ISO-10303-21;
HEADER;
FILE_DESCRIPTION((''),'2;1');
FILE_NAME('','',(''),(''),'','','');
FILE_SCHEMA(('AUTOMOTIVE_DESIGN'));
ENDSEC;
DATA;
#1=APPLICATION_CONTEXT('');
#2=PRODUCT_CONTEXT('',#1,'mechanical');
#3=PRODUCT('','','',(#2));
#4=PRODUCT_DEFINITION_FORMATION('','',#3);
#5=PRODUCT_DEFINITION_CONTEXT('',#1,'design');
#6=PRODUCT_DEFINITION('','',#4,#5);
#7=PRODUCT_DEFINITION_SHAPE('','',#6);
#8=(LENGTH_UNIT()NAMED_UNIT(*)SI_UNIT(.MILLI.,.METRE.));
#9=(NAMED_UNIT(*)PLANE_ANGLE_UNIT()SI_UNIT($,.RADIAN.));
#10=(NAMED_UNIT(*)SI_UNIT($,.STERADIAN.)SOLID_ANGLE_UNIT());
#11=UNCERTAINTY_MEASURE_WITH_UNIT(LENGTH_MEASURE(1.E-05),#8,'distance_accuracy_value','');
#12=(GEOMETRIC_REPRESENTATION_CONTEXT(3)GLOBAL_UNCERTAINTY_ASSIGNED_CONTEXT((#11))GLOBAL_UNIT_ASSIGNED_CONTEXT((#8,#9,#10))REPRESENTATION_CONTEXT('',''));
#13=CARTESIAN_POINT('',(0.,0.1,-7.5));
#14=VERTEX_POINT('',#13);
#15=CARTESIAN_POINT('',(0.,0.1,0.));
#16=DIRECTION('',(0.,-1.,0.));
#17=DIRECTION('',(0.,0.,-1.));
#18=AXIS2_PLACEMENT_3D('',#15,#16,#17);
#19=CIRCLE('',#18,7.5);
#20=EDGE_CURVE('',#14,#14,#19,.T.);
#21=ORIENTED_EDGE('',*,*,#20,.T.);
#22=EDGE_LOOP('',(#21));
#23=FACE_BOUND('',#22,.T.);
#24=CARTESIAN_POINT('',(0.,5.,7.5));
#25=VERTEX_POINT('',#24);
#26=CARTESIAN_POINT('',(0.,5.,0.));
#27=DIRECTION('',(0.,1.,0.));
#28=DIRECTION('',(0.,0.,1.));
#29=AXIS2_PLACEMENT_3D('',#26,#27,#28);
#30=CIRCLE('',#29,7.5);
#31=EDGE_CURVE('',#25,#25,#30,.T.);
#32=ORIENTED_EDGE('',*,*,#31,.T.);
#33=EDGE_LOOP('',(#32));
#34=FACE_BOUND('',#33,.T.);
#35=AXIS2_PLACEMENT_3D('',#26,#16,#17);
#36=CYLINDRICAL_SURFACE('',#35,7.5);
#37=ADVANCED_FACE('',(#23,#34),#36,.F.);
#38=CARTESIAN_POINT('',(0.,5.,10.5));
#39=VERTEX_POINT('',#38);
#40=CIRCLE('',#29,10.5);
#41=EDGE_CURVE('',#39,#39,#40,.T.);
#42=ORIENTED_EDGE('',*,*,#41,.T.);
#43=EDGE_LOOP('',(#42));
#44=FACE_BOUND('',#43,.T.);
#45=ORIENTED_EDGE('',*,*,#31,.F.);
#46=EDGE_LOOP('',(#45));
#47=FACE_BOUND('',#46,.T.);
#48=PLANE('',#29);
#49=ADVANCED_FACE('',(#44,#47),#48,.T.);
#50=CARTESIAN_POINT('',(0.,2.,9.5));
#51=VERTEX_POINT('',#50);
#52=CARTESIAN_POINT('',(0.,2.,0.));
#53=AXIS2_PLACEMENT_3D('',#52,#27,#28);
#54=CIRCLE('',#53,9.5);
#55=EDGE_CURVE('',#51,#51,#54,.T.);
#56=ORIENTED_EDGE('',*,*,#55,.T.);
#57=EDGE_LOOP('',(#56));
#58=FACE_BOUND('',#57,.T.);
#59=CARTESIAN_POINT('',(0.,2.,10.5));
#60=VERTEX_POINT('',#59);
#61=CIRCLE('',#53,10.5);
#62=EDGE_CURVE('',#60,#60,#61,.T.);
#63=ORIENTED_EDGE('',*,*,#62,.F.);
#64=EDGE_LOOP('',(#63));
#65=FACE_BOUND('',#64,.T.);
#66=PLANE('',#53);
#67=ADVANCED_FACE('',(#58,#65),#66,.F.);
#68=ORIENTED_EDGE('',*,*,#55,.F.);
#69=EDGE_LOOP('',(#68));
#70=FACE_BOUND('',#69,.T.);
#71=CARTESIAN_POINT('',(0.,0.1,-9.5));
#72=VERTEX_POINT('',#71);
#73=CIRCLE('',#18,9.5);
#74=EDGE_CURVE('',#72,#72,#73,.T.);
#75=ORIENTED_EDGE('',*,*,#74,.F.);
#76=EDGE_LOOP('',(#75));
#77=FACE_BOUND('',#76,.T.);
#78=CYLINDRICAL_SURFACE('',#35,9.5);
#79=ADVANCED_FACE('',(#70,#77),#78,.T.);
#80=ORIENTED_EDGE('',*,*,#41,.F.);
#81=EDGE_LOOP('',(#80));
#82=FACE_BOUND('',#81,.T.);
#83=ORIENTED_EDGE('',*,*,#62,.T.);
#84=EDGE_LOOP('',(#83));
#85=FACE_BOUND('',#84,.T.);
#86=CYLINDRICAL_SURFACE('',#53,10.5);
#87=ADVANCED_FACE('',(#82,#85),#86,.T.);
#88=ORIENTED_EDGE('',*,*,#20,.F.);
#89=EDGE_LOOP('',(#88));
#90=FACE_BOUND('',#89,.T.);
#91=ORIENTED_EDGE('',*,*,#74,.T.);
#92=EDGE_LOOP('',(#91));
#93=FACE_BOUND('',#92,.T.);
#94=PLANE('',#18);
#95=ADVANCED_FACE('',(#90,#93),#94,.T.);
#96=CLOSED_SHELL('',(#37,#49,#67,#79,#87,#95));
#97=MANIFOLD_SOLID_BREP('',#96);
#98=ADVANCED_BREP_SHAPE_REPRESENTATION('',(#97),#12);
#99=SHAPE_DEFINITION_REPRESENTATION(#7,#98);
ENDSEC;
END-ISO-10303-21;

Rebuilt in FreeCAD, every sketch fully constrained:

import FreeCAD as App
import Part
import Sketcher
Q = App.Units.Quantity

doc = App.newDocument("Part")
body = doc.addObject("PartDesign::Body", "Body")

# Sketch on XZ plane
sketch1 = doc.addObject("Sketcher::SketchObject", "Sketch")
body.addObject(sketch1)
sketch1.AttachmentSupport = (doc.XZ_Plane, [""])
sketch1.MapMode = "FlatFace"
sketch1.addGeometry(Part.Circle(App.Vector(0, 0, 0), App.Vector(0, 0, 1), 9.5), False)
sketch1.addGeometry(Part.Circle(App.Vector(0, 0, 0), App.Vector(0, 0, 1), 7.5), False)
sketch1.addConstraint(Sketcher.Constraint("Coincident", 0, 3, -1, 1))
sketch1.addConstraint(Sketcher.Constraint("Coincident", 1, 3, -1, 1))
sketch1.addConstraint(Sketcher.Constraint("Diameter", 0, Q("19 mm")))
sketch1.addConstraint(Sketcher.Constraint("Diameter", 1, Q("15 mm")))
pad1 = doc.addObject("PartDesign::Pad", "Pad")
body.addObject(pad1)
pad1.Profile = sketch1
pad1.Length = 5
pad1.Reversed = True

# Sketch on XZ plane
sketch2 = doc.addObject("Sketcher::SketchObject", "Sketch001")
body.addObject(sketch2)
sketch2.AttachmentSupport = (doc.XZ_Plane, [""])
sketch2.MapMode = "FlatFace"
sketch2.AttachmentOffset = App.Placement(App.Vector(0, 0, -5), App.Rotation())
sketch2.addGeometry(Part.Circle(App.Vector(0, 0, 0), App.Vector(0, 0, 1), 10.5), False)
sketch2.addGeometry(Part.Circle(App.Vector(0, 0, 0), App.Vector(0, 0, 1), 9.5), False)
sketch2.addConstraint(Sketcher.Constraint("Coincident", 0, 3, -1, 1))
sketch2.addConstraint(Sketcher.Constraint("Coincident", 1, 3, -1, 1))
sketch2.addConstraint(Sketcher.Constraint("Diameter", 0, Q("21 mm")))
sketch2.addConstraint(Sketcher.Constraint("Diameter", 1, Q("19 mm")))
pad2 = doc.addObject("PartDesign::Pad", "Pad001")
body.addObject(pad2)
pad2.Profile = sketch2
pad2.Length = 3

# Sketch on XZ plane
sketch3 = doc.addObject("Sketcher::SketchObject", "Sketch002")
body.addObject(sketch3)
sketch3.AttachmentSupport = (doc.XZ_Plane, [""])
sketch3.MapMode = "FlatFace"
sketch3.addGeometry(Part.Circle(App.Vector(0, 0, 0), App.Vector(0, 0, 1), 9.5), False)
sketch3.addConstraint(Sketcher.Constraint("Coincident", 0, 3, -1, 1))
sketch3.addConstraint(Sketcher.Constraint("Diameter", 0, Q("19 mm")))
pocket1 = doc.addObject("PartDesign::Pocket", "Pocket")
body.addObject(pocket1)
pocket1.Profile = sketch3
pocket1.Length = 0.1

doc.recompute()
